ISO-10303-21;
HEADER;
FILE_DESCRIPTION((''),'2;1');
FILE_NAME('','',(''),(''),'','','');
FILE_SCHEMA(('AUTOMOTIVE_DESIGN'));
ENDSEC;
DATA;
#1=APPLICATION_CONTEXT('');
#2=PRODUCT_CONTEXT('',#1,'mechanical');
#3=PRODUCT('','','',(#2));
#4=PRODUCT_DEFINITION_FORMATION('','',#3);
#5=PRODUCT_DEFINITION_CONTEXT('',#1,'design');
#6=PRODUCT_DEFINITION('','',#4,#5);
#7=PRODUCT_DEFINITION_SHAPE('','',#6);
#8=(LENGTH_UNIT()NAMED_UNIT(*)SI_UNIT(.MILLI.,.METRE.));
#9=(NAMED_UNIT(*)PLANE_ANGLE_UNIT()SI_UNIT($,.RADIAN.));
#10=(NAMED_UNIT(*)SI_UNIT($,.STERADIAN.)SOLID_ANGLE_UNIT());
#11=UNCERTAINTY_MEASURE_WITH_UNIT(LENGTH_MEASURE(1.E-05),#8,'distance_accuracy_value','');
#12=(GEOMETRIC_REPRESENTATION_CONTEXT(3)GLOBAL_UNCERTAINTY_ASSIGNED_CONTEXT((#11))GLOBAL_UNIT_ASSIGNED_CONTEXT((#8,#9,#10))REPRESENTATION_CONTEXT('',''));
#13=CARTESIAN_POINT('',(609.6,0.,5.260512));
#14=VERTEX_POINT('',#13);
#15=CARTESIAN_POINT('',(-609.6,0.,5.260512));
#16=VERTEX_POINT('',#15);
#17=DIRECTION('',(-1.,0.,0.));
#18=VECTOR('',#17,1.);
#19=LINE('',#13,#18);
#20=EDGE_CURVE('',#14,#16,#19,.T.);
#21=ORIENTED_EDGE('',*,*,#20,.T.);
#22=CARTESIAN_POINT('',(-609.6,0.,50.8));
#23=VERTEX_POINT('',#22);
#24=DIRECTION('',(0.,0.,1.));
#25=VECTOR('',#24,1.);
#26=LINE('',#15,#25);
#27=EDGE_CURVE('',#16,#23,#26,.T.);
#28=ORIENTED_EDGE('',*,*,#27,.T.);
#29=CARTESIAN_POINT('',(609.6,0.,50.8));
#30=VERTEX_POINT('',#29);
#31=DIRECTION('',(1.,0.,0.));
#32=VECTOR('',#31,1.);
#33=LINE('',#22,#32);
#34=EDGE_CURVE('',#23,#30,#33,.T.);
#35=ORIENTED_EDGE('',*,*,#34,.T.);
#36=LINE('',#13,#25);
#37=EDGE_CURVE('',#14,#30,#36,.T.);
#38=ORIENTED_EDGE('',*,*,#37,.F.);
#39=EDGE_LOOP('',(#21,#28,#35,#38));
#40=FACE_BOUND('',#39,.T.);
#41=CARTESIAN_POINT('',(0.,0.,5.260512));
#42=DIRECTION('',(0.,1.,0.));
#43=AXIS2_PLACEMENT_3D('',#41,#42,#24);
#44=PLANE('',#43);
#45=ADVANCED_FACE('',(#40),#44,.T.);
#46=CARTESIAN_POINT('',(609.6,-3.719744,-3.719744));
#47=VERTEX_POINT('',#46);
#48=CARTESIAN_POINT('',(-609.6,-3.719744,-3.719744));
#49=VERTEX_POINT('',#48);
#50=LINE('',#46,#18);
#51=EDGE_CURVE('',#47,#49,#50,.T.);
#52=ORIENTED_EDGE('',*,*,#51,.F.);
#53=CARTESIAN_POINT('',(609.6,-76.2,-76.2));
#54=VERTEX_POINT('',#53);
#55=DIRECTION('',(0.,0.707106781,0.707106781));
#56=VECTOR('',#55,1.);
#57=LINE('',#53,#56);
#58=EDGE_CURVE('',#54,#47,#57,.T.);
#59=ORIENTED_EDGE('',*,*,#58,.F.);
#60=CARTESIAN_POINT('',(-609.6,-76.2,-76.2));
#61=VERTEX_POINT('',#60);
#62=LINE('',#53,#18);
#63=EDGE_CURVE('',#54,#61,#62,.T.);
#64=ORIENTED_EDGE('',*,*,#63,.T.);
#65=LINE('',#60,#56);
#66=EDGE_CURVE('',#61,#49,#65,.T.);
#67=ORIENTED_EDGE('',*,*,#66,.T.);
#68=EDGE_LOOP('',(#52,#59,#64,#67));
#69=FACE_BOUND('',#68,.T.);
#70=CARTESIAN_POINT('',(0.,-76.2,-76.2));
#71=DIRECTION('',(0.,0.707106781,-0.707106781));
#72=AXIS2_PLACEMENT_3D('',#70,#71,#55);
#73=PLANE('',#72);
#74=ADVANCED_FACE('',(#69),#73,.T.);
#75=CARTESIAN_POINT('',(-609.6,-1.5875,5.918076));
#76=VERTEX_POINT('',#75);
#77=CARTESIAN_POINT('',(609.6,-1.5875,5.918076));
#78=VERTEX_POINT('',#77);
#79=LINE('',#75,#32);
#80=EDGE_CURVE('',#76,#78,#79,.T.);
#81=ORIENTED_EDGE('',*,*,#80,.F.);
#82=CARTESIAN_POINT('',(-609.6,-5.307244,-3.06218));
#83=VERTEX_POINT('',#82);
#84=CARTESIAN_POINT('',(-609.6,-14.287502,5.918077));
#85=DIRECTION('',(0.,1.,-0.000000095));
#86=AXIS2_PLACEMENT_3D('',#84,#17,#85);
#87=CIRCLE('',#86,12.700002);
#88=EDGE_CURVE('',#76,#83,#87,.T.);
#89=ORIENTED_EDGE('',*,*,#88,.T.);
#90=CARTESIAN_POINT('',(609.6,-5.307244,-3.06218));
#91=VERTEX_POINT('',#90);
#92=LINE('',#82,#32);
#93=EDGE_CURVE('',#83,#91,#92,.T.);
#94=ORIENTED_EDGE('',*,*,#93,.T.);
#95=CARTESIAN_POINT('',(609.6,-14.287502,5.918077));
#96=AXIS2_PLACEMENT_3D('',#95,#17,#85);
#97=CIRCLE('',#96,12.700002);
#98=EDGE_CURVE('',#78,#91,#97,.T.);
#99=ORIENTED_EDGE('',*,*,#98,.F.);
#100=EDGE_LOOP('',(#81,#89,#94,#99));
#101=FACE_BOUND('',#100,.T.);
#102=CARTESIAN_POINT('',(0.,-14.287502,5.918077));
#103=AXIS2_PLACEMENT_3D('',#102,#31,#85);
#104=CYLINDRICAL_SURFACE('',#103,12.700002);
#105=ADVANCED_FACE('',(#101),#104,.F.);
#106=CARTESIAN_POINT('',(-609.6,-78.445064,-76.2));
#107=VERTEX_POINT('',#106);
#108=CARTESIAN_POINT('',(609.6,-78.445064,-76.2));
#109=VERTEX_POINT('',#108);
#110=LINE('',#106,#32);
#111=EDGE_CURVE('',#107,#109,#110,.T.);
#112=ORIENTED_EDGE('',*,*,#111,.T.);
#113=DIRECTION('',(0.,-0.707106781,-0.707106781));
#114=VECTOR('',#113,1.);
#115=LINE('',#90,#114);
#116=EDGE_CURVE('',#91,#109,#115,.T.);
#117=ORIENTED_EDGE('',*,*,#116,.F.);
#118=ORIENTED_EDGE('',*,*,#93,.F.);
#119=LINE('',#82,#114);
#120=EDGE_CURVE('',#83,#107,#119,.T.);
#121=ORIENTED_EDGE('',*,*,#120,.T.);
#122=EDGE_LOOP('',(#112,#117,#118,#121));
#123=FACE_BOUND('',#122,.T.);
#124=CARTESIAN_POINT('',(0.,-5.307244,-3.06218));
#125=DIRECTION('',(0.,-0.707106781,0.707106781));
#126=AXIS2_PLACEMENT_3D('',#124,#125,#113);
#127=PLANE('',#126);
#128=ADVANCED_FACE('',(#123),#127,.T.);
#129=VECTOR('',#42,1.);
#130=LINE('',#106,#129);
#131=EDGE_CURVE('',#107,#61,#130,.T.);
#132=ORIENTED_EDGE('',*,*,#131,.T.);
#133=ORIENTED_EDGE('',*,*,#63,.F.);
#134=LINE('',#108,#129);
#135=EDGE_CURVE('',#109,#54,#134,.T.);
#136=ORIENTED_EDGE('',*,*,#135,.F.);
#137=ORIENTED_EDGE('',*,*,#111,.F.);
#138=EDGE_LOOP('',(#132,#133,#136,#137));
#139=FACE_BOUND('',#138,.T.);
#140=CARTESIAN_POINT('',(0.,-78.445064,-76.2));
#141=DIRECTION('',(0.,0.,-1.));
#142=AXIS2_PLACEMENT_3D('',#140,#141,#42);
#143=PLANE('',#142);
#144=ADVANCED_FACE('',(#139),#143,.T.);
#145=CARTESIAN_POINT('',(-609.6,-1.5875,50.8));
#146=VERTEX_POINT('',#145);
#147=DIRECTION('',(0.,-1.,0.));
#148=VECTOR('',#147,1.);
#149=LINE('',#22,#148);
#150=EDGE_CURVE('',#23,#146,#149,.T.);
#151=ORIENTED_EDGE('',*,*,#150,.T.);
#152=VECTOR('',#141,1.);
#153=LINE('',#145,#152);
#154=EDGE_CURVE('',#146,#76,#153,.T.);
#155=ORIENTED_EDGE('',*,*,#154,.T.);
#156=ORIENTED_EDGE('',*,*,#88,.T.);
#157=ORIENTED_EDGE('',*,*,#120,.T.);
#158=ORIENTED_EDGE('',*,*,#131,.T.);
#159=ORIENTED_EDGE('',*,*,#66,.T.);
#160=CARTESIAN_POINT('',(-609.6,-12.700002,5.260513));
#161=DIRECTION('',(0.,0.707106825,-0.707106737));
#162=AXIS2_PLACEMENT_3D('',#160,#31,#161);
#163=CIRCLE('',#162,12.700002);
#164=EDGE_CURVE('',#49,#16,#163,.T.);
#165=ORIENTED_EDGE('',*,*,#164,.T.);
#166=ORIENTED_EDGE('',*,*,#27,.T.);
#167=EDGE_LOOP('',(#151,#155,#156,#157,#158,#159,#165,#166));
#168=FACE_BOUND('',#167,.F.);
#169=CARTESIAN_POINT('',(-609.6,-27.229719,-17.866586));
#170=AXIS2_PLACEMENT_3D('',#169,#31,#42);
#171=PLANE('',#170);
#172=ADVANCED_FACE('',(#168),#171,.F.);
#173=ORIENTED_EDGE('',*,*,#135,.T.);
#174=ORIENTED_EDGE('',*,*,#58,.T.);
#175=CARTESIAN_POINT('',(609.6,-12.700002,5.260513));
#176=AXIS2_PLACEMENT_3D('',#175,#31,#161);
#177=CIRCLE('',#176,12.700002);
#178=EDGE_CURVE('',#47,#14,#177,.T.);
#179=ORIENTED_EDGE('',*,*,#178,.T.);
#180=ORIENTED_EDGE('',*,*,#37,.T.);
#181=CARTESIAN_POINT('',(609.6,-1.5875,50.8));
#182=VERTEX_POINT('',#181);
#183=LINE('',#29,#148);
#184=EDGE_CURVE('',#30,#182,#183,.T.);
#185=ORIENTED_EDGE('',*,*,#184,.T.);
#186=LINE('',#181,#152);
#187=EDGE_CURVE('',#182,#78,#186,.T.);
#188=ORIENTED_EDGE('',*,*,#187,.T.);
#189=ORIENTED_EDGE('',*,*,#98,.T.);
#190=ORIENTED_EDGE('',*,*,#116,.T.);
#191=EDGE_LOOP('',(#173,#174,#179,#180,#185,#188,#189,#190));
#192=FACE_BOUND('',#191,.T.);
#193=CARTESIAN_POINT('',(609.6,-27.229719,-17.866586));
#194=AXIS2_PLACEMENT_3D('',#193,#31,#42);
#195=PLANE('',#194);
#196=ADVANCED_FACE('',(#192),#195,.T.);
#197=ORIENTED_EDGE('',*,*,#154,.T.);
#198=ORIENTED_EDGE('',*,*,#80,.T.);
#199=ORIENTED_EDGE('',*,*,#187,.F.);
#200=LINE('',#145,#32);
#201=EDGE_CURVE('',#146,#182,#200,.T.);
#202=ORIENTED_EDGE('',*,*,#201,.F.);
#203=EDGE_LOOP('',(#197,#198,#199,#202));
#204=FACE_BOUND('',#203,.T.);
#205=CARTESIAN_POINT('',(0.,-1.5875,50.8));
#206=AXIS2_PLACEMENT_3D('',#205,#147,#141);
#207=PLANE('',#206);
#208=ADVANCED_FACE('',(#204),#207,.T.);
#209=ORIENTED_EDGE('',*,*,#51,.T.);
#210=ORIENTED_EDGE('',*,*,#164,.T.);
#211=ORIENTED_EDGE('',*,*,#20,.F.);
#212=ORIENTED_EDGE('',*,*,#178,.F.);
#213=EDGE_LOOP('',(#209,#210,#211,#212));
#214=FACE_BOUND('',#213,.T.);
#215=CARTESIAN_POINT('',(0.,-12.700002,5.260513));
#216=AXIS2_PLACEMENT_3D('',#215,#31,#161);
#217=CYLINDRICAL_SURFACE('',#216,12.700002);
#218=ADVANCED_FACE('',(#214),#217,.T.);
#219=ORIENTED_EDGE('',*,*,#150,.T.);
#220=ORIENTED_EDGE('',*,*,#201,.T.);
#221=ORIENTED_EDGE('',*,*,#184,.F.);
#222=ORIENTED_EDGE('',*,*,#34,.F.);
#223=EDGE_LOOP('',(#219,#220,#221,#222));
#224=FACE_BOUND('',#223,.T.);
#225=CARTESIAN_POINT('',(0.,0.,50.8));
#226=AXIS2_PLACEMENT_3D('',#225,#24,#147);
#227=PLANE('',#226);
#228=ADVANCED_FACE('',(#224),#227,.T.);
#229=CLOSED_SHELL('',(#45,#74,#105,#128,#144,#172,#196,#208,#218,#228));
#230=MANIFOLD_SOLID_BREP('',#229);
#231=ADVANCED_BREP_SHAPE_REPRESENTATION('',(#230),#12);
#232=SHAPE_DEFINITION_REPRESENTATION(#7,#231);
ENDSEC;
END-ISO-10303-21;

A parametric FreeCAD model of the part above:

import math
import FreeCAD as App
import Part
import Sketcher
from FreeCAD import Vector
Q = App.Units.Quantity

doc = App.newDocument("Part")
params = doc.addObject("Spreadsheet::Sheet", "Params")
for row, (alias, value) in enumerate([
    ("sketch1_radius", "0.5000001 in"),
    ("sketch1_width", "0.0625 in"),
    ("pad1_length", "24 in"),
    ("pad1_length2", "24 in"),
], start=1):
    params.set(f"A{row}", alias)
    params.set(f"B{row}", "=" + value)
    params.setAlias(f"B{row}", alias)

body = doc.addObject("PartDesign::Body", "Body")

# Sketch on YZ plane
sketch1 = body.newObject("Sketcher::SketchObject", "Sketch")
sketch1.AttachmentSupport = (doc.getObject("YZ_Plane"), [""])
sketch1.MapMode = "FlatFace"
sketch1.addGeometry([
    Part.LineSegment(Vector(0, 5.3, 0), Vector(0, 50.8, 0)),  # 0
    Part.LineSegment(Vector(0, 50.8, 0), Vector(-1.6, 50.8, 0)),  # 1
    Part.LineSegment(Vector(-1.6, 50.8, 0), Vector(-1.6, 5.9, 0)),  # 2
    Part.ArcOfCircle(Part.Circle(Vector(-14.3, 5.9, 0), Vector(0, 0, 1), 12.7), math.radians(-45), math.radians(0)),  # 3
    Part.LineSegment(Vector(-5.3, -3.1, 0), Vector(-78.4, -76.2, 0)),  # 4
    Part.LineSegment(Vector(-78.4, -76.2, 0), Vector(-76.2, -76.2, 0)),  # 5
    Part.LineSegment(Vector(-76.2, -76.2, 0), Vector(-3.7, -3.7, 0)),  # 6
    Part.ArcOfCircle(Part.Circle(Vector(-12.7, 5.3, 0), Vector(0, 0, 1), 12.7), math.radians(-45), math.radians(0)),  # 7
], False)
sketch1.addConstraint([
    Sketcher.Constraint("Coincident", 0, 2, 1, 1),
    Sketcher.Constraint("Coincident", 1, 2, 2, 1),
    Sketcher.Constraint("Tangent", 2, 2, 3, 2),
    Sketcher.Constraint("Tangent", 3, 1, 4, 1),
    Sketcher.Constraint("Coincident", 4, 2, 5, 1),
    Sketcher.Constraint("Coincident", 5, 2, 6, 1),
    Sketcher.Constraint("Tangent", 6, 2, 7, 1),
    Sketcher.Constraint("Tangent", 7, 2, 0, 1),
    Sketcher.Constraint("Vertical", 0),
    Sketcher.Constraint("Horizontal", 1),
    Sketcher.Constraint("Vertical", 2),
    Sketcher.Constraint("Horizontal", 5),
    Sketcher.Constraint("Equal", 3, 7),
    Sketcher.Constraint("PointOnObject", 0, 2, -2),
    Sketcher.Constraint("Parallel", 4, 6),
    Sketcher.Constraint("Radius", 3, Q("0.5000001 in")),
    Sketcher.Constraint("DistanceY", -1, 1, 0, 2, Q("2 in")),
    Sketcher.Constraint("DistanceY", 4, 2, -1, 1, Q("3 in")),
    Sketcher.Constraint("DistanceX", 5, 2, -1, 1, Q("3 in")),
    Sketcher.Constraint("Angle", 4, Q("-135 deg")),
    Sketcher.Constraint("DistanceX", 1, 2, 1, 1, Q("0.0625 in")),
    Sketcher.Constraint("DistanceX", 5, 1, 5, 2, Q("2.245064 mm")),
])
sketch1.setExpression("Constraints[15]", "Params.sketch1_radius")
sketch1.setExpression("Constraints[20]", "Params.sketch1_width")
pad1 = body.newObject("PartDesign::Pad", "Pad")
pad1.Profile = sketch1
pad1.Type = "TwoLengths"
pad1.setExpression("Length", "Params.pad1_length")
pad1.setExpression("Length2", "Params.pad1_length2")

doc.recompute()
